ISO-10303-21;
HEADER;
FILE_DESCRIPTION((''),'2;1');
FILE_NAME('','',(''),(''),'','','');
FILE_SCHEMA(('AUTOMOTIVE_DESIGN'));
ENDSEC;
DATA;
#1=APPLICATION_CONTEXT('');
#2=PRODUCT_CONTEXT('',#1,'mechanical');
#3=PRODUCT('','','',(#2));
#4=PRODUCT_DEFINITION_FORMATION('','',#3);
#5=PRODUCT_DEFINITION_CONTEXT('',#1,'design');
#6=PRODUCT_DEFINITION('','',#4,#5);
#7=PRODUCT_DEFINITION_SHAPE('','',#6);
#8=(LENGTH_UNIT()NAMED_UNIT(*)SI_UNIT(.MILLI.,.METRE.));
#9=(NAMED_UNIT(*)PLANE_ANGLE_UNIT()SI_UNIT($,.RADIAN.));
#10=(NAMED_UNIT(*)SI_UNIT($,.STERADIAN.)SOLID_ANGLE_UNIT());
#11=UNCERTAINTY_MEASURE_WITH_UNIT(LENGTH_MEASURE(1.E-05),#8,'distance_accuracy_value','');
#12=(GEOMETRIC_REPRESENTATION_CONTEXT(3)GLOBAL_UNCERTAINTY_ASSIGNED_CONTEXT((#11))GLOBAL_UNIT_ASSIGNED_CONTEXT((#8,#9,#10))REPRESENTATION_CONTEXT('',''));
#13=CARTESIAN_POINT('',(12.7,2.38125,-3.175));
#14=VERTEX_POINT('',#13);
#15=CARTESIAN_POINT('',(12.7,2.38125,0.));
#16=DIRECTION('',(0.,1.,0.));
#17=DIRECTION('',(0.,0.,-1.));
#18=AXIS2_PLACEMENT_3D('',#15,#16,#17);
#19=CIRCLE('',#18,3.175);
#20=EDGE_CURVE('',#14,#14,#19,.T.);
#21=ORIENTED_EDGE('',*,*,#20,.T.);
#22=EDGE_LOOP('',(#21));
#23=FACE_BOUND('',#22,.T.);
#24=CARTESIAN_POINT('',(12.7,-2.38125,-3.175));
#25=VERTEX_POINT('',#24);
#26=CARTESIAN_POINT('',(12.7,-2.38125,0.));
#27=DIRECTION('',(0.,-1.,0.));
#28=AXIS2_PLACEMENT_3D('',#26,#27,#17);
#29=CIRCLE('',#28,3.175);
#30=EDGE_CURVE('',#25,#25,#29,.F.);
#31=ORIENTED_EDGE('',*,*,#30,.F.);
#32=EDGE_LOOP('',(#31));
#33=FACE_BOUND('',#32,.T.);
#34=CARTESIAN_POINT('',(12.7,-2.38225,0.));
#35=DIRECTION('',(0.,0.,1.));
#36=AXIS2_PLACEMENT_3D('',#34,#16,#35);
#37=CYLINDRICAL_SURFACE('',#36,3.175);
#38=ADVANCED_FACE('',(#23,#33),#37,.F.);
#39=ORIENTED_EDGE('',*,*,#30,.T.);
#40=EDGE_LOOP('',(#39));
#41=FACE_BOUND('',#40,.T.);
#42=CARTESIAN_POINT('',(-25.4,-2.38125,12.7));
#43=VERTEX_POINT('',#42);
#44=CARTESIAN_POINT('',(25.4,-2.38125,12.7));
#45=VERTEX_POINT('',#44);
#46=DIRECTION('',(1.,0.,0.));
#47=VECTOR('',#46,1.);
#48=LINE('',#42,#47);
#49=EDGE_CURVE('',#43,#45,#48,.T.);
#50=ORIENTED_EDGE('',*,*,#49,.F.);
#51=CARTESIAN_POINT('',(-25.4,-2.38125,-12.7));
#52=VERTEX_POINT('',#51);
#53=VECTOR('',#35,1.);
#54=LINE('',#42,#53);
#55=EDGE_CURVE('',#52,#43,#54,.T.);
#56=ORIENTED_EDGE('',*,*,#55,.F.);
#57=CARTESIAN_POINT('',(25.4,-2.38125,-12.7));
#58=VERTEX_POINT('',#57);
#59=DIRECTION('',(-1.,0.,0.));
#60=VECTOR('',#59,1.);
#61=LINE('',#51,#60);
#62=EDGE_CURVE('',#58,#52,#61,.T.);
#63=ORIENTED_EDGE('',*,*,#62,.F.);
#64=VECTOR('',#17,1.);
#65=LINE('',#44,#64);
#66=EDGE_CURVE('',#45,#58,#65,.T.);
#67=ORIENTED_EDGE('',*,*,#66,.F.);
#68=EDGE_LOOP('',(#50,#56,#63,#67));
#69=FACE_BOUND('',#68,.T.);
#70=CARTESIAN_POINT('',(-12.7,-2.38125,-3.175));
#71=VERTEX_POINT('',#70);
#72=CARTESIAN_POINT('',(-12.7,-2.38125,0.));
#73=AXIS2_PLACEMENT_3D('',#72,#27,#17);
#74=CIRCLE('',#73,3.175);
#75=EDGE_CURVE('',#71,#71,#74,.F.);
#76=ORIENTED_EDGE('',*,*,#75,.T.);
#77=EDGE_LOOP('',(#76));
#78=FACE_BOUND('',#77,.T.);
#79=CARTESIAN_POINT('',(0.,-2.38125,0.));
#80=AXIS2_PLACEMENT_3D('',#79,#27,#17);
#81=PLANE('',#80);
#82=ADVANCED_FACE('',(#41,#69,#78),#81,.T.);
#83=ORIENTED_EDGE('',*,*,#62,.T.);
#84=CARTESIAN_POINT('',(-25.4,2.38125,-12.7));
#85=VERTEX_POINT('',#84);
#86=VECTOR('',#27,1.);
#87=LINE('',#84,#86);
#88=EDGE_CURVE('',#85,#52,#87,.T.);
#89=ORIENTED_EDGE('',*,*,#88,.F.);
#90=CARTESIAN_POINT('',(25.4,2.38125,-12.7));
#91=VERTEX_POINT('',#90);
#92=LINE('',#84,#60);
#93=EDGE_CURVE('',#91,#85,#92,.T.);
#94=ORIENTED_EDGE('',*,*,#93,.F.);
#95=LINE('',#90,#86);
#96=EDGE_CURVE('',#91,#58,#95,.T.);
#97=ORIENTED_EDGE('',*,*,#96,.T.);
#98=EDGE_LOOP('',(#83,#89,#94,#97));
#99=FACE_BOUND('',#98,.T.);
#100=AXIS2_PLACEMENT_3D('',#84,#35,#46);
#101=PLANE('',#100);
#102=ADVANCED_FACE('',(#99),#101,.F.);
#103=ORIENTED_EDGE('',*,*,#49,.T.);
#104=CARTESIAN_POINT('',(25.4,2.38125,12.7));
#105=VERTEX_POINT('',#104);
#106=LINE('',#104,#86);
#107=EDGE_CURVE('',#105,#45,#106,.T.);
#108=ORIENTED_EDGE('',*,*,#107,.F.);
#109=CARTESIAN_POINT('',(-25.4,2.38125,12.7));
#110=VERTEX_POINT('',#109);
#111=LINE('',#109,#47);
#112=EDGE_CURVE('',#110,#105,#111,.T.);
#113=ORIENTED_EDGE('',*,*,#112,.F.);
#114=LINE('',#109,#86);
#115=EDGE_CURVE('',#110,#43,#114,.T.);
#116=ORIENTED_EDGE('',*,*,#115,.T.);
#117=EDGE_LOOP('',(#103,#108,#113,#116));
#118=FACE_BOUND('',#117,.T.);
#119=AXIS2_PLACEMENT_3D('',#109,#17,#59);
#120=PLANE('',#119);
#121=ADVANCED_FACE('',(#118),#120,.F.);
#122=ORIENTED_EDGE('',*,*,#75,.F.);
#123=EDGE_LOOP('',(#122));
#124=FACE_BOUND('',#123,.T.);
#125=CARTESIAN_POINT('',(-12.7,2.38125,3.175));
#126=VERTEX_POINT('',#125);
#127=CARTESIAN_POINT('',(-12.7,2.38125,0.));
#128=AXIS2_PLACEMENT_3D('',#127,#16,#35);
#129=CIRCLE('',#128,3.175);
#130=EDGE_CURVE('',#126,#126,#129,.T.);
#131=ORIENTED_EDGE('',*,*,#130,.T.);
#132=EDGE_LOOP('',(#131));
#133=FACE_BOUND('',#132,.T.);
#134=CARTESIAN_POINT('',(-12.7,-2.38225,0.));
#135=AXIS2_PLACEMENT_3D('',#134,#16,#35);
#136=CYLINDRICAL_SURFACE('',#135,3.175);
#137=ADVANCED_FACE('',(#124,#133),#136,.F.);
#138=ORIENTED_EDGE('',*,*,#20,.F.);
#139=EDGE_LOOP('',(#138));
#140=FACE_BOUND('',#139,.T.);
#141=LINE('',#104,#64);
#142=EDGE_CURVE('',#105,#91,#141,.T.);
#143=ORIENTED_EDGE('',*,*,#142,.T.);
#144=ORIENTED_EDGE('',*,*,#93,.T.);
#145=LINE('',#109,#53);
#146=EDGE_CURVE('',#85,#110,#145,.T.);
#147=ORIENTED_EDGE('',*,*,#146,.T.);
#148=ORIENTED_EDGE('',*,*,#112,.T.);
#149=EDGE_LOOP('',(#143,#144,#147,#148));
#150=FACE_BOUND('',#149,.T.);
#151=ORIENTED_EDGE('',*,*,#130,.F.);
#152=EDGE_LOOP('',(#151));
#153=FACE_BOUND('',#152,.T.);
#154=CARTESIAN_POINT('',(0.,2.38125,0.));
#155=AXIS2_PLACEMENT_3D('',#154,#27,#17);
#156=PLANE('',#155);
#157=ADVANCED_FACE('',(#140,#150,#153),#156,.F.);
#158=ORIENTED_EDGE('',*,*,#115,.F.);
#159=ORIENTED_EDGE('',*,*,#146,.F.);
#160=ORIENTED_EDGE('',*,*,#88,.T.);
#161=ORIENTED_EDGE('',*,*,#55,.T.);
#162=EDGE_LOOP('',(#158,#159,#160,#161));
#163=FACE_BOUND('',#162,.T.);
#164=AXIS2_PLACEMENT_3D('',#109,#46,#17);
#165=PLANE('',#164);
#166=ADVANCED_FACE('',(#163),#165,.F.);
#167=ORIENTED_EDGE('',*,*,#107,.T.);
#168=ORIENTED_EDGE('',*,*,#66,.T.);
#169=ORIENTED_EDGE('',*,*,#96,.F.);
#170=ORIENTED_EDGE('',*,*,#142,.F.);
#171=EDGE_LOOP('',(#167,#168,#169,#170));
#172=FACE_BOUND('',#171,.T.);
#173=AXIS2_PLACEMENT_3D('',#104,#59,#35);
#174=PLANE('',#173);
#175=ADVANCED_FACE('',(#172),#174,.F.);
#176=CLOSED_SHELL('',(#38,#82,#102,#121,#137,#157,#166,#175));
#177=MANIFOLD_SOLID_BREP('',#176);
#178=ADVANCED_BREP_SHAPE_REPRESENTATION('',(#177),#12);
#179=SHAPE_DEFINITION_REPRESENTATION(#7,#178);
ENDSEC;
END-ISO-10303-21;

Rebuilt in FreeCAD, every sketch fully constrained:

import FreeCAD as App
import Part
import Sketcher

V = App.Vector
Q = App.Units.Quantity


def add_polygon(sketch, points):
    """Adds a closed chain of lines whose ends are joined by coincident constraints."""
    first, n = sketch.GeometryCount, len(points)
    for a, b in zip(points, points[1:] + points[:1]):
        sketch.addGeometry(Part.LineSegment(App.Vector(*a, 0), App.Vector(*b, 0)), False)
    for i in range(n):
        sketch.addConstraint(Sketcher.Constraint("Coincident", first + i, 2, first + (i + 1) % n, 1))

doc = App.newDocument("Part")
body = doc.addObject("PartDesign::Body", "Body")

sketch1 = body.newObject("Sketcher::SketchObject", "Sketch")
sketch1.AttachmentSupport = (doc.getObject("XZ_Plane"), [""])
sketch1.MapMode = "FlatFace"
add_polygon(sketch1, [(-25.4, -12.7), (-25.4, 12.7), (25.4, 12.7), (25.4, -12.7)])
sketch1.addConstraint([
    Sketcher.Constraint("Vertical", 0),
    Sketcher.Constraint("Horizontal", 1),
    Sketcher.Constraint("Vertical", 2),
    Sketcher.Constraint("Horizontal", 3),
    Sketcher.Constraint("Symmetric", 0, 2, 2, 2, -1, 1),
    Sketcher.Constraint("DistanceX", 1, 1, 1, 2, Q("2 in")),
    Sketcher.Constraint("DistanceY", 0, 1, 0, 2, Q("1 in")),
])
pad1 = body.newObject("PartDesign::Pad", "Pad")
pad1.Profile = sketch1
pad1.Length = Q("0.1875 in")
pad1.Midplane = True

sketch2 = body.newObject("Sketcher::SketchObject", "Sketch001")
sketch2.AttachmentSupport = (doc.getObject("XZ_Plane"), [""])
sketch2.MapMode = "FlatFace"
sketch2.AttachmentOffset = App.Placement(V(0, 0, -0.09375 * 25.4), App.Rotation())
sketch2.addGeometry(Part.Circle(V(-12.7, 0, 0), V(0, 0, 1), 3.175), False)
sketch2.addConstraint([
    Sketcher.Constraint("PointOnObject", 0, 3, -1),
    Sketcher.Constraint("Diameter", 0, Q("0.25 in")),
    Sketcher.Constraint("DistanceX", 0, 3, -1, 1, Q("0.5 in")),
])
pocket1 = body.newObject("PartDesign::Pocket", "Pocket")
pocket1.Profile = sketch2
pocket1.Type = "UpToFirst"
pocket1.Reversed = True

sketch3 = body.newObject("Sketcher::SketchObject", "Sketch002")
sketch3.AttachmentSupport = (doc.getObject("XZ_Plane"), [""])
sketch3.MapMode = "FlatFace"
sketch3.AttachmentOffset = App.Placement(V(0, 0, -0.09375 * 25.4), App.Rotation())
sketch3.addGeometry(Part.Circle(V(12.7, 0, 0), V(0, 0, 1), 3.175), False)
sketch3.addConstraint([
    Sketcher.Constraint("PointOnObject", 0, 3, -1),
    Sketcher.Constraint("Diameter", 0, Q("0.25 in")),
    Sketcher.Constraint("DistanceX", -1, 1, 0, 3, Q("0.5 in")),
])
pocket2 = body.newObject("PartDesign::Pocket", "Pocket001")
pocket2.Profile = sketch3
pocket2.Type = "UpToFirst"
pocket2.Reversed = True

doc.recompute()
